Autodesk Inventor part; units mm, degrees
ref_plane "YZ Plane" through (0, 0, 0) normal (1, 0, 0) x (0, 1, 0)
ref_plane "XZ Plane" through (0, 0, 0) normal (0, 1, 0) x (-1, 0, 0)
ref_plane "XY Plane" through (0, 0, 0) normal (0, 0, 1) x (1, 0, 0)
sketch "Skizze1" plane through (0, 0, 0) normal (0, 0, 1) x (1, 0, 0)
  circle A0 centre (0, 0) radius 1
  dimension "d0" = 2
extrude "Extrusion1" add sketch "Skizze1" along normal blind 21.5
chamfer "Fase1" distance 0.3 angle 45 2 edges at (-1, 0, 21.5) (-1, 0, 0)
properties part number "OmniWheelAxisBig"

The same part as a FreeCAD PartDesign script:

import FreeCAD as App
import Part
import Sketcher
from FreeCAD import Vector
Q = App.Units.Quantity


def edges_at(feature, points):
    """Names of the edges that pass closest to the given points."""
    edges = feature.Shape.Edges
    near = lambda p: min(range(len(edges)), key=lambda i: edges[i].distToShape(Part.Vertex(*p))[0])
    return sorted({f"Edge{near(p) + 1}" for p in points})

doc = App.newDocument("Part")
body = doc.addObject("PartDesign::Body", "Body")

# Sketch on XY plane
sketch1 = body.newObject("Sketcher::SketchObject", "Sketch")
sketch1.AttachmentSupport = (doc.getObject("XY_Plane"), [""])
sketch1.MapMode = "FlatFace"
sketch1.addGeometry(Part.Circle(Vector(0, 0, 0), Vector(0, 0, 1), 1), False)
sketch1.addConstraint([
    Sketcher.Constraint("Coincident", 0, 3, -1, 1),
    Sketcher.Constraint("Diameter", 0, Q("2 mm")),
])
pad1 = body.newObject("PartDesign::Pad", "Pad")
pad1.Profile = sketch1
pad1.Length = 21.5
doc.recompute()

chamfer = body.newObject("PartDesign::Chamfer", "Chamfer")
chamfer.Base = (pad1, edges_at(pad1, [(-1, 0, 21.5), (-1, 0, 0)]))
chamfer.Size = 0.3

doc.recompute()
